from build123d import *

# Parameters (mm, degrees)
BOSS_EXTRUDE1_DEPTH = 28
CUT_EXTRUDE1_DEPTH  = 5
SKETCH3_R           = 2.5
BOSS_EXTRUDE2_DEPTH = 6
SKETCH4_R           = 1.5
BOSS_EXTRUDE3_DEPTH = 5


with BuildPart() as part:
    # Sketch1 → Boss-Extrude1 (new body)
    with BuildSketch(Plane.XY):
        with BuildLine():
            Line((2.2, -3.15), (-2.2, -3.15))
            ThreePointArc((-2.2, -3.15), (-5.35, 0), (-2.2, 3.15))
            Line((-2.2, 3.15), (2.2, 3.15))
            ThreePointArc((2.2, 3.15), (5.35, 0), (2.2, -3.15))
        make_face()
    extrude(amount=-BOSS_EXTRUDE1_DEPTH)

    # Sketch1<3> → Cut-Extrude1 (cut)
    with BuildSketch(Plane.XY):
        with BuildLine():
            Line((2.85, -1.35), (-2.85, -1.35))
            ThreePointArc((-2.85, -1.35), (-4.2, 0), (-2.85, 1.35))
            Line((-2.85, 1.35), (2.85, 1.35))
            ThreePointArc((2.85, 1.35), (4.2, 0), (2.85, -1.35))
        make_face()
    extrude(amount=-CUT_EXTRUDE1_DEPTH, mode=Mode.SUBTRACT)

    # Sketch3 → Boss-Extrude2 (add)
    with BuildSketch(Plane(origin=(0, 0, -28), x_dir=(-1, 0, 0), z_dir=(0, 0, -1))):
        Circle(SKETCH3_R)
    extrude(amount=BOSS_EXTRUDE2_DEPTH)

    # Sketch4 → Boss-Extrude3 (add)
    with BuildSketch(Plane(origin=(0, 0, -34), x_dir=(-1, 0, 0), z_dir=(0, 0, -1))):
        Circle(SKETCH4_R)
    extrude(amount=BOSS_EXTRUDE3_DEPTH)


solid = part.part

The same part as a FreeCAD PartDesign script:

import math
import FreeCAD as App
import Part
import Sketcher

V = App.Vector

doc = App.newDocument("Part")
params = doc.addObject("Spreadsheet::Sheet", "Params")
for row, (alias, value) in enumerate([
    ("sketch1_radius", "3.15 mm"),
    ("sketch1_width", "4.4 mm"),
    ("pad1_length", "28 mm"),
    ("sketch2_radius", "1.35 mm"),
    ("sketch2_width", "5.7 mm"),
    ("pocket1_length", "5 mm"),
    ("sketch3_diameter", "5 mm"),
    ("pad2_length", "6 mm"),
    ("sketch4_diameter", "3 mm"),
    ("pad3_length", "5 mm"),
], start=1):
    params.set(f"A{row}", alias)
    params.set(f"B{row}", "=" + value)
    params.setAlias(f"B{row}", alias)

body = doc.addObject("PartDesign::Body", "Body")

# Sketch on XY plane
sketch1 = body.newObject("Sketcher::SketchObject", "Sketch")
sketch1.AttachmentSupport = (doc.getObject("XY_Plane"), [""])
sketch1.MapMode = "FlatFace"
sketch1.addGeometry([
    Part.LineSegment(V(-2.2, -3.1, 0), V(2.2, -3.1, 0)),
    Part.ArcOfCircle(Part.Circle(V(2.2, 0, 0), V(0, 0, 1), 3.1), math.radians(-90), math.radians(90)),
    Part.LineSegment(V(2.2, 3.1, 0), V(-2.2, 3.1, 0)),
    Part.ArcOfCircle(Part.Circle(V(-2.2, 0, 0), V(0, 0, 1), 3.1), math.radians(90), math.radians(270)),
], False)
sketch1.addConstraint([
    Sketcher.Constraint("Tangent", 0, 2, 1, 1),
    Sketcher.Constraint("Tangent", 1, 2, 2, 1),
    Sketcher.Constraint("Tangent", 2, 2, 3, 1),
    Sketcher.Constraint("Tangent", 3, 2, 0, 1),
    Sketcher.Constraint("Horizontal", 0),
    Sketcher.Constraint("Horizontal", 2),
    Sketcher.Constraint("Symmetric", 1, 3, 3, 3, -1, 1),
    Sketcher.Constraint("Radius", 1, 3.15),
    Sketcher.Constraint("DistanceX", 0, 1, 0, 2, 4.4),
])
sketch1.setExpression("Constraints[7]", "Params.sketch1_radius")
sketch1.setExpression("Constraints[8]", "Params.sketch1_width")
pad1 = body.newObject("PartDesign::Pad", "Pad")
pad1.Profile = sketch1
pad1.setExpression("Length", "Params.pad1_length")
pad1.Reversed = True

# Sketch on XY plane
sketch2 = body.newObject("Sketcher::SketchObject", "Sketch001")
sketch2.AttachmentSupport = (doc.getObject("XY_Plane"), [""])
sketch2.MapMode = "FlatFace"
sketch2.addGeometry([
    Part.LineSegment(V(-2.9, -1.4, 0), V(2.9, -1.4, 0)),
    Part.ArcOfCircle(Part.Circle(V(2.9, 0, 0), V(0, 0, 1), 1.4), math.radians(-90), math.radians(90)),
    Part.LineSegment(V(2.9, 1.4, 0), V(-2.9, 1.4, 0)),
    Part.ArcOfCircle(Part.Circle(V(-2.9, 0, 0), V(0, 0, 1), 1.4), math.radians(90), math.radians(270)),
], False)
sketch2.addConstraint([
    Sketcher.Constraint("Tangent", 0, 2, 1, 1),
    Sketcher.Constraint("Tangent", 1, 2, 2, 1),
    Sketcher.Constraint("Tangent", 2, 2, 3, 1),
    Sketcher.Constraint("Tangent", 3, 2, 0, 1),
    Sketcher.Constraint("Horizontal", 0),
    Sketcher.Constraint("Horizontal", 2),
    Sketcher.Constraint("Symmetric", 1, 3, 3, 3, -1, 1),
    Sketcher.Constraint("Radius", 1, 1.35),
    Sketcher.Constraint("DistanceX", 0, 1, 0, 2, 5.7),
])
sketch2.setExpression("Constraints[7]", "Params.sketch2_radius")
sketch2.setExpression("Constraints[8]", "Params.sketch2_width")
pocket1 = body.newObject("PartDesign::Pocket", "Pocket")
pocket1.Profile = sketch2
pocket1.setExpression("Length", "Params.pocket1_length")

# Sketch on XY plane
sketch3 = body.newObject("Sketcher::SketchObject", "Sketch002")
sketch3.AttachmentSupport = (doc.getObject("XY_Plane"), [""])
sketch3.MapMode = "FlatFace"
sketch3.AttachmentOffset = App.Placement(V(0, 0, -28), App.Rotation())
sketch3.addGeometry(Part.Circle(V(0, 0, 0), V(0, 0, 1), 2.5), False)
sketch3.addConstraint([
    Sketcher.Constraint("Coincident", 0, 3, -1, 1),
    Sketcher.Constraint("Diameter", 0, 5.0),
])
sketch3.setExpression("Constraints[1]", "Params.sketch3_diameter")
pad2 = body.newObject("PartDesign::Pad", "Pad001")
pad2.Profile = sketch3
pad2.setExpression("Length", "Params.pad2_length")
pad2.Reversed = True

# Sketch on XY plane
sketch4 = body.newObject("Sketcher::SketchObject", "Sketch003")
sketch4.AttachmentSupport = (doc.getObject("XY_Plane"), [""])
sketch4.MapMode = "FlatFace"
sketch4.AttachmentOffset = App.Placement(V(0, 0, -34), App.Rotation())
sketch4.addGeometry(Part.Circle(V(0, 0, 0), V(0, 0, 1), 1.5), False)
sketch4.addConstraint([
    Sketcher.Constraint("Coincident", 0, 3, -1, 1),
    Sketcher.Constraint("Diameter", 0, 3.0),
])
sketch4.setExpression("Constraints[1]", "Params.sketch4_diameter")
pad3 = body.newObject("PartDesign::Pad", "Pad002")
pad3.Profile = sketch4
pad3.setExpression("Length", "Params.pad3_length")
pad3.Reversed = True

doc.recompute()
